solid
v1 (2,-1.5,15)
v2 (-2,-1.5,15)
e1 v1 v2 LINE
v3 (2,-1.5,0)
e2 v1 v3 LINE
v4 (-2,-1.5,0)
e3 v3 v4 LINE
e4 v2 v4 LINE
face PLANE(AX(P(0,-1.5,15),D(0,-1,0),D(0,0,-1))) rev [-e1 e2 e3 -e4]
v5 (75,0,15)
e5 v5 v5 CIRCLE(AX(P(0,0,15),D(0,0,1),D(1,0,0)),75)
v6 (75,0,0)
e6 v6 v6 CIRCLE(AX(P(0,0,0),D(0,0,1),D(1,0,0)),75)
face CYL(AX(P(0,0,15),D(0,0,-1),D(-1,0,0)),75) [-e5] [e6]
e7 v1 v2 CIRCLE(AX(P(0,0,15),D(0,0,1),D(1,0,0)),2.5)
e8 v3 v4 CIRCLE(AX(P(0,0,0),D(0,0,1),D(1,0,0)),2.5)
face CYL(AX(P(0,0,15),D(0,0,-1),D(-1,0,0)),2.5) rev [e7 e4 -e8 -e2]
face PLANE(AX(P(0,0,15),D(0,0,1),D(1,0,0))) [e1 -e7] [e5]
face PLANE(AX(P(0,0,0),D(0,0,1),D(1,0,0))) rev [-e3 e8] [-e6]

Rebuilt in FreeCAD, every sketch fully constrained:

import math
import FreeCAD as App
import Part
import Sketcher

V = App.Vector

doc = App.newDocument("Part")
body = doc.addObject("PartDesign::Body", "Body")

# Sketch on XY plane
sketch1 = body.newObject("Sketcher::SketchObject", "Sketch")
sketch1.AttachmentSupport = (doc.getObject("XY_Plane"), [""])
sketch1.MapMode = "FlatFace"
sketch1.addGeometry([
    Part.Circle(V(0, 0, 0), V(0, 0, 1), 75),
    Part.ArcOfCircle(Part.Circle(V(0, 0, 0), V(0, 0, 1), 2.5), math.radians(-36.869898), math.radians(216.869898)),
    Part.LineSegment(V(2, -1.5, 0), V(-2, -1.5, 0)),
], False)
sketch1.addConstraint([
    Sketcher.Constraint("Coincident", 1, 1, 2, 1),
    Sketcher.Constraint("Coincident", 2, 2, 1, 2),
    Sketcher.Constraint("Horizontal", 2),
    Sketcher.Constraint("Coincident", 0, 3, -1, 1),
    Sketcher.Constraint("Coincident", 1, 3, -1, 1),
    Sketcher.Constraint("Diameter", 0, 150.0),
    Sketcher.Constraint("Radius", 1, 2.5),
    Sketcher.Constraint("DistanceX", 2, 2, 2, 1, 4.0),
])
pad1 = body.newObject("PartDesign::Pad", "Pad")
pad1.Profile = sketch1
pad1.Length = 15

doc.recompute()
